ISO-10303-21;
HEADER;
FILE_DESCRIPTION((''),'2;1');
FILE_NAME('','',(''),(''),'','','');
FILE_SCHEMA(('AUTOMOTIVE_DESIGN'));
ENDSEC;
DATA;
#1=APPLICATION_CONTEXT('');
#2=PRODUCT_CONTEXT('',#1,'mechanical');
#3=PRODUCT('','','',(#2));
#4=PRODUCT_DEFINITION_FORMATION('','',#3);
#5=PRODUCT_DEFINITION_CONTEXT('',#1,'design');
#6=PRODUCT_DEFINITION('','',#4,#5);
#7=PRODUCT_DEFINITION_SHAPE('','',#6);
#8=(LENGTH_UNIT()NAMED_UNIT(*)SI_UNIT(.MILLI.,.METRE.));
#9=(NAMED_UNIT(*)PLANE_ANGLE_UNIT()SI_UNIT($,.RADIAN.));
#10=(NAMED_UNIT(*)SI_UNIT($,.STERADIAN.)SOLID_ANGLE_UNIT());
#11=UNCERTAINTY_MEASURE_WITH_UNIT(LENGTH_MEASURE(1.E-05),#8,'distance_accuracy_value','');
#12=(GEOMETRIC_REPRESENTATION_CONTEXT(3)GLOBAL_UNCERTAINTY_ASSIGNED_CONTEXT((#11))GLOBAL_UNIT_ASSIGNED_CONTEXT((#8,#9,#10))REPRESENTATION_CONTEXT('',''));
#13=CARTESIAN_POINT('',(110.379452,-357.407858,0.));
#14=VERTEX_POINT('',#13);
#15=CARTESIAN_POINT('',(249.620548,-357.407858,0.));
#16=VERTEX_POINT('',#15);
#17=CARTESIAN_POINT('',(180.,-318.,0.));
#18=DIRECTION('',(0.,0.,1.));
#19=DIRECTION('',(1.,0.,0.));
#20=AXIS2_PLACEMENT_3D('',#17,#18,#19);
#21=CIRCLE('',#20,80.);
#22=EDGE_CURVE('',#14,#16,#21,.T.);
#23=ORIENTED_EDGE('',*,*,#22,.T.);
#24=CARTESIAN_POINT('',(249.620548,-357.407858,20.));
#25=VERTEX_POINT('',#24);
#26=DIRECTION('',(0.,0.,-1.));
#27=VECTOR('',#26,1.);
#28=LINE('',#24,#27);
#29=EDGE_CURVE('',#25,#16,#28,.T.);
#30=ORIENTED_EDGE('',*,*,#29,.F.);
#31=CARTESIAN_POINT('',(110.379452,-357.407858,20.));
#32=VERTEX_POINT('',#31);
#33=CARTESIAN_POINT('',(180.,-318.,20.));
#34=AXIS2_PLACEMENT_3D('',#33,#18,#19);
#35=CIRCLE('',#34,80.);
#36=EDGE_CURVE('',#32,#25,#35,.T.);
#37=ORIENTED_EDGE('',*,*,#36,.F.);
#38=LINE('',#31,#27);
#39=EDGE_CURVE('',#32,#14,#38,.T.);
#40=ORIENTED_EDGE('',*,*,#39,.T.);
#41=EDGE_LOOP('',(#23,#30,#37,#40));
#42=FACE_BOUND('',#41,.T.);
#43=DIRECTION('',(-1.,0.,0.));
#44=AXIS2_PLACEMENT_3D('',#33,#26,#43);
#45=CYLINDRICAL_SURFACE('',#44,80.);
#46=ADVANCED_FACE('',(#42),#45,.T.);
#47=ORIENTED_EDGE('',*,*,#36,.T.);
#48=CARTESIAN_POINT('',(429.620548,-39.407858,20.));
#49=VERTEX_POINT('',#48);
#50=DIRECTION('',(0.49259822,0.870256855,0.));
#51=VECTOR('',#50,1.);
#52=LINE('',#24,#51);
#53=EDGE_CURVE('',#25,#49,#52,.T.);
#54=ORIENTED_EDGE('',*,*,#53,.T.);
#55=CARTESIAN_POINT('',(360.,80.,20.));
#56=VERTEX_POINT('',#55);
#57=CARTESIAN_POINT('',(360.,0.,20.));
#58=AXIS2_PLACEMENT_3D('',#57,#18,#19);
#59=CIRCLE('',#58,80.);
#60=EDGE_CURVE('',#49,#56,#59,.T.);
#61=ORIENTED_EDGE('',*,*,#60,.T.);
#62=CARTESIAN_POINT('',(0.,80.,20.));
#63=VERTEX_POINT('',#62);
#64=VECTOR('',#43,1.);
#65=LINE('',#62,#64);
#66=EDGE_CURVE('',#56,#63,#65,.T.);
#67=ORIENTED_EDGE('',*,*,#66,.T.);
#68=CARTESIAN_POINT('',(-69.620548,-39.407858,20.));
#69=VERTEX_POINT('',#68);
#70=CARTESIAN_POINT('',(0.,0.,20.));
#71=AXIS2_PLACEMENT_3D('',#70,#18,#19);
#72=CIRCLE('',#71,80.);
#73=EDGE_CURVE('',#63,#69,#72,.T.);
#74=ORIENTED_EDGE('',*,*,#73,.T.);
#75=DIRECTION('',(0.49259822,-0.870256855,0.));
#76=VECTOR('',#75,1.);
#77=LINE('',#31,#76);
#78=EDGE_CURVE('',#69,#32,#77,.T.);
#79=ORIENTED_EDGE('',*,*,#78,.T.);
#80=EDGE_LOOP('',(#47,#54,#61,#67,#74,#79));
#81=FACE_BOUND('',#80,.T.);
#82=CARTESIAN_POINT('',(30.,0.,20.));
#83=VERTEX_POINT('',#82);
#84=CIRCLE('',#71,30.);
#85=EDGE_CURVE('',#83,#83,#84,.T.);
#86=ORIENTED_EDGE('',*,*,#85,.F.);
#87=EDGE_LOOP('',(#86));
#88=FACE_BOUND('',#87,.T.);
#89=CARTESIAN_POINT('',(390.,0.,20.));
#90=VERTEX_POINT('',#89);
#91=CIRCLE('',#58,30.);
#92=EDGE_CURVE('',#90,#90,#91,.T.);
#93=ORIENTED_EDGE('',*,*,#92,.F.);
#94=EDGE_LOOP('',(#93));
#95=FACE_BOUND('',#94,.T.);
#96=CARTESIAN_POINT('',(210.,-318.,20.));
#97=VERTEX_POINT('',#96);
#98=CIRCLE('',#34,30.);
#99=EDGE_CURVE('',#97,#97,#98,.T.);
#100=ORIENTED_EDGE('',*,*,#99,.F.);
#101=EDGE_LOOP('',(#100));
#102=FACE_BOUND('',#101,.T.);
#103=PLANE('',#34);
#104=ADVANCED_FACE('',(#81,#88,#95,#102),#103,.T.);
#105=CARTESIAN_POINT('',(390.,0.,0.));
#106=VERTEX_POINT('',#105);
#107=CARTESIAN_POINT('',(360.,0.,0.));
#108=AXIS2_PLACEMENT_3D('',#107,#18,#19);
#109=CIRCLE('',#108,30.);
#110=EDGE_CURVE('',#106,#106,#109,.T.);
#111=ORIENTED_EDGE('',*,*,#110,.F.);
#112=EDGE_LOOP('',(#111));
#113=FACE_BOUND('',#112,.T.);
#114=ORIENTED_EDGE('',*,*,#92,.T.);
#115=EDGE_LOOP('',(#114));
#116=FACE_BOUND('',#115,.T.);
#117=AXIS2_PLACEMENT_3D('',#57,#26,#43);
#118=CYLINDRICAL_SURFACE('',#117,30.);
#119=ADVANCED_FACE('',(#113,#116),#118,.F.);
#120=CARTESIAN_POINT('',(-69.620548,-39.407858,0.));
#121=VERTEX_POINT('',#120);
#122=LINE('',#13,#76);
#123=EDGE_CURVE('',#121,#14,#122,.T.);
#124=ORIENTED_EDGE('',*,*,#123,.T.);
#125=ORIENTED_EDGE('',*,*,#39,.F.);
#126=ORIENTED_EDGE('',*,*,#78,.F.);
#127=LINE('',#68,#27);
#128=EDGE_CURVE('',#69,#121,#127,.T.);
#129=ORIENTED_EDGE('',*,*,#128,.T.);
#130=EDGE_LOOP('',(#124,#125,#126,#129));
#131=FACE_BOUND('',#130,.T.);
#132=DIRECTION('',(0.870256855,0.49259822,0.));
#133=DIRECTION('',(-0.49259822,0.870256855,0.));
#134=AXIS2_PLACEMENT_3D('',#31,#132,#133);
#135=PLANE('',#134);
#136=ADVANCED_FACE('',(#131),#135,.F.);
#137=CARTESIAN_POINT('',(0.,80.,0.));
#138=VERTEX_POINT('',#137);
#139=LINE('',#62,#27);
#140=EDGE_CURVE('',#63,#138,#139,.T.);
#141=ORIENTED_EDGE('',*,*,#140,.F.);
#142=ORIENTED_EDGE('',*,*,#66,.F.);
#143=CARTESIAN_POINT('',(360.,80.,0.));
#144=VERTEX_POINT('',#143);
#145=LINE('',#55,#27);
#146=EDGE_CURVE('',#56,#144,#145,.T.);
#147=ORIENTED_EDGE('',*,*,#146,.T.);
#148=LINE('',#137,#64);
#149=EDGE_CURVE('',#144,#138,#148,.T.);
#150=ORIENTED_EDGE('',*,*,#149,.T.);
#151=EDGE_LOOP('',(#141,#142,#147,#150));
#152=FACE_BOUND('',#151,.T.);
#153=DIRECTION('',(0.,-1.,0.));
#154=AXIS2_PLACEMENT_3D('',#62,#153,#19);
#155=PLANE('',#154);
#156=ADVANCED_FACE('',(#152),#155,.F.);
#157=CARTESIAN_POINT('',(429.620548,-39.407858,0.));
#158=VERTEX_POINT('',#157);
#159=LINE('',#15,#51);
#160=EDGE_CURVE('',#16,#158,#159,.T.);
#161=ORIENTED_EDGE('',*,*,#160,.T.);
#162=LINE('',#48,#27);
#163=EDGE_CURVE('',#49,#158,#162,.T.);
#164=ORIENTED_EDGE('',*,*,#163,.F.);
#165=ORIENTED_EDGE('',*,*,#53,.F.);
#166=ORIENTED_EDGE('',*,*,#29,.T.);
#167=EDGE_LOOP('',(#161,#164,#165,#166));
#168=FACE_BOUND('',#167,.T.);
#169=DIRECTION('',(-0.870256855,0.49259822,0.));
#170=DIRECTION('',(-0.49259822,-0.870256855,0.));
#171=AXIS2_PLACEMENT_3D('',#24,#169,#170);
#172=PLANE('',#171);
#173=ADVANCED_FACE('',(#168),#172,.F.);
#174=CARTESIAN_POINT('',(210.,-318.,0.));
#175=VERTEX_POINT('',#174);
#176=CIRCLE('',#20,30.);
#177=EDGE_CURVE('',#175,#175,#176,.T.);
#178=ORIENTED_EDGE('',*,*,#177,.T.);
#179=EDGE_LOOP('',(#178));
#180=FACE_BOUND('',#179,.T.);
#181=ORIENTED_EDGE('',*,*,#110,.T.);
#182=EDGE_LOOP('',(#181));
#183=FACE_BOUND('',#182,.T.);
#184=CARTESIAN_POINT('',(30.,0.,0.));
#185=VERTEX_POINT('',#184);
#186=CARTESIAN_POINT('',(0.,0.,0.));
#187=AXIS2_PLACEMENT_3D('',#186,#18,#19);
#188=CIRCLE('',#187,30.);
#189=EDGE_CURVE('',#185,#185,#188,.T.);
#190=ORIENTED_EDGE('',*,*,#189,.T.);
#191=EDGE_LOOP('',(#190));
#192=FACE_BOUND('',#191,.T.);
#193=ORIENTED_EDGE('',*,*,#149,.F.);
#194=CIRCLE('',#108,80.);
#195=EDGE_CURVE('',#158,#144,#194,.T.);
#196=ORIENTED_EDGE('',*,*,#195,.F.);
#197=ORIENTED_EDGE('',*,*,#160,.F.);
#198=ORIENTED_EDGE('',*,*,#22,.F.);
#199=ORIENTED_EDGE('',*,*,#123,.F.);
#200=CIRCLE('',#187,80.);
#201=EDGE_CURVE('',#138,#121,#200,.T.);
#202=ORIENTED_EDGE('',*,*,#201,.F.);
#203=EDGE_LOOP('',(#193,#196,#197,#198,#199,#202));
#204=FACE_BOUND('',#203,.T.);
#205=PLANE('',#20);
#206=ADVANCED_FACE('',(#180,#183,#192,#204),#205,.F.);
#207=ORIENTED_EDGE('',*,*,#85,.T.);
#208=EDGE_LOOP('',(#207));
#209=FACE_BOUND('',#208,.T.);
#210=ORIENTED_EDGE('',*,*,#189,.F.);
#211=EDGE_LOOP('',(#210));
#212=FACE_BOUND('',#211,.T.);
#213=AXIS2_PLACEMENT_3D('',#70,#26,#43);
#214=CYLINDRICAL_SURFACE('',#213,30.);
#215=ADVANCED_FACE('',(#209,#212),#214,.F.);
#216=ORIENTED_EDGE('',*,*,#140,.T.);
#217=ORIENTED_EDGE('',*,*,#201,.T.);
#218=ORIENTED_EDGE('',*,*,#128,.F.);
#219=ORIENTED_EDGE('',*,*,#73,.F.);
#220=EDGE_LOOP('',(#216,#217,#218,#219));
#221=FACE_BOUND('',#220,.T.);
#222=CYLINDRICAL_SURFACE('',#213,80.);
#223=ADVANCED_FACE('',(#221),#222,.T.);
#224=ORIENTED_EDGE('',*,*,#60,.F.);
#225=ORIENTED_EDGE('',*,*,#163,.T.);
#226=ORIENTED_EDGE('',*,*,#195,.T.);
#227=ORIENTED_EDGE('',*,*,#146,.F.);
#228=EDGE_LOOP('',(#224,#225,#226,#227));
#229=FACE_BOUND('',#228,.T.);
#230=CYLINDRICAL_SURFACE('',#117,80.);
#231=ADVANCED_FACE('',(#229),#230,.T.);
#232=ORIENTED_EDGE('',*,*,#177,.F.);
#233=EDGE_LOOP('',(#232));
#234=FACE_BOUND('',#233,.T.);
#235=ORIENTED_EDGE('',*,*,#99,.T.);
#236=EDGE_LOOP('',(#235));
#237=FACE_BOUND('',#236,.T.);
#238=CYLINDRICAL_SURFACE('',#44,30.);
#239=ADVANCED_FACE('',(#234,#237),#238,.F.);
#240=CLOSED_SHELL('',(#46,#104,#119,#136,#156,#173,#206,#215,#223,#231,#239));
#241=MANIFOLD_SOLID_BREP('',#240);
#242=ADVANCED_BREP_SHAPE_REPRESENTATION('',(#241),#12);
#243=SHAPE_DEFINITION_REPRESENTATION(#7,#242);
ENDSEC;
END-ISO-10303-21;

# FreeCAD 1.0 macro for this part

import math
import FreeCAD as App
import Part
import Sketcher

V = App.Vector

doc = App.newDocument("Part")
body = doc.addObject("PartDesign::Body", "Body")

sketch1 = body.newObject("Sketcher::SketchObject", "Sketch")
sketch1.AttachmentSupport = (doc.getObject("XY_Plane"), [""])
sketch1.MapMode = "FlatFace"
sketch1.addGeometry(Part.LineSegment(V(-69.620548, -39.407858, 0), V(110.379452, -357.407858, 0)), False)
sketch1.addGeometry(Part.ArcOfCircle(Part.Circle(V(180, -318, 0), V(0, 0, 1), 80), math.radians(-150.488501), math.radians(-29.511499)), False)
sketch1.addGeometry(Part.LineSegment(V(249.620548, -357.407858, 0), V(429.620548, -39.407858, 0)), False)
sketch1.addGeometry(Part.ArcOfCircle(Part.Circle(V(360, 0, 0), V(0, 0, 1), 80), math.radians(-29.511499), math.radians(90)), False)
sketch1.addGeometry(Part.LineSegment(V(360, 80, 0), V(0, 80, 0)), False)
sketch1.addGeometry(Part.ArcOfCircle(Part.Circle(V(0, 0, 0), V(0, 0, 1), 80), math.radians(90), math.radians(209.511499)), False)
sketch1.addGeometry(Part.Circle(V(180, -318, 0), V(0, 0, 1), 30), False)
sketch1.addGeometry(Part.Circle(V(360, 0, 0), V(0, 0, 1), 30), False)
sketch1.addGeometry(Part.Circle(V(0, 0, 0), V(0, 0, 1), 30), False)
sketch1.addConstraint(Sketcher.Constraint("Tangent", 0, 2, 1, 1))
sketch1.addConstraint(Sketcher.Constraint("Tangent", 1, 2, 2, 1))
sketch1.addConstraint(Sketcher.Constraint("Tangent", 2, 2, 3, 1))
sketch1.addConstraint(Sketcher.Constraint("Tangent", 3, 2, 4, 1))
sketch1.addConstraint(Sketcher.Constraint("Tangent", 4, 2, 5, 1))
sketch1.addConstraint(Sketcher.Constraint("Tangent", 5, 2, 0, 1))
sketch1.addConstraint(Sketcher.Constraint("Horizontal", 4))
sketch1.addConstraint(Sketcher.Constraint("Coincident", 5, 3, -1, 1))
sketch1.addConstraint(Sketcher.Constraint("Coincident", 8, 3, -1, 1))
sketch1.addConstraint(Sketcher.Constraint("Coincident", 6, 3, 1, 3))
sketch1.addConstraint(Sketcher.Constraint("Coincident", 7, 3, 3, 3))
sketch1.addConstraint(Sketcher.Constraint("Equal", 1, 3))
sketch1.addConstraint(Sketcher.Constraint("Equal", 3, 5))
sketch1.addConstraint(Sketcher.Constraint("Equal", 6, 7))
sketch1.addConstraint(Sketcher.Constraint("Equal", 7, 8))
sketch1.addConstraint(Sketcher.Constraint("Horizontal", 0, 2, 1, 2))
sketch1.addConstraint(Sketcher.Constraint("Diameter", 6, 60.0))
sketch1.addConstraint(Sketcher.Constraint("Radius", 1, 80.0))
sketch1.addConstraint(Sketcher.Constraint("DistanceX", 4, 2, 4, 1, 360.0))
sketch1.addConstraint(Sketcher.Constraint("DistanceY", 1, 3, -1, 1, 318.0))
pad1 = body.newObject("PartDesign::Pad", "Pad")
pad1.Profile = sketch1
pad1.Length = 20

doc.recompute()
